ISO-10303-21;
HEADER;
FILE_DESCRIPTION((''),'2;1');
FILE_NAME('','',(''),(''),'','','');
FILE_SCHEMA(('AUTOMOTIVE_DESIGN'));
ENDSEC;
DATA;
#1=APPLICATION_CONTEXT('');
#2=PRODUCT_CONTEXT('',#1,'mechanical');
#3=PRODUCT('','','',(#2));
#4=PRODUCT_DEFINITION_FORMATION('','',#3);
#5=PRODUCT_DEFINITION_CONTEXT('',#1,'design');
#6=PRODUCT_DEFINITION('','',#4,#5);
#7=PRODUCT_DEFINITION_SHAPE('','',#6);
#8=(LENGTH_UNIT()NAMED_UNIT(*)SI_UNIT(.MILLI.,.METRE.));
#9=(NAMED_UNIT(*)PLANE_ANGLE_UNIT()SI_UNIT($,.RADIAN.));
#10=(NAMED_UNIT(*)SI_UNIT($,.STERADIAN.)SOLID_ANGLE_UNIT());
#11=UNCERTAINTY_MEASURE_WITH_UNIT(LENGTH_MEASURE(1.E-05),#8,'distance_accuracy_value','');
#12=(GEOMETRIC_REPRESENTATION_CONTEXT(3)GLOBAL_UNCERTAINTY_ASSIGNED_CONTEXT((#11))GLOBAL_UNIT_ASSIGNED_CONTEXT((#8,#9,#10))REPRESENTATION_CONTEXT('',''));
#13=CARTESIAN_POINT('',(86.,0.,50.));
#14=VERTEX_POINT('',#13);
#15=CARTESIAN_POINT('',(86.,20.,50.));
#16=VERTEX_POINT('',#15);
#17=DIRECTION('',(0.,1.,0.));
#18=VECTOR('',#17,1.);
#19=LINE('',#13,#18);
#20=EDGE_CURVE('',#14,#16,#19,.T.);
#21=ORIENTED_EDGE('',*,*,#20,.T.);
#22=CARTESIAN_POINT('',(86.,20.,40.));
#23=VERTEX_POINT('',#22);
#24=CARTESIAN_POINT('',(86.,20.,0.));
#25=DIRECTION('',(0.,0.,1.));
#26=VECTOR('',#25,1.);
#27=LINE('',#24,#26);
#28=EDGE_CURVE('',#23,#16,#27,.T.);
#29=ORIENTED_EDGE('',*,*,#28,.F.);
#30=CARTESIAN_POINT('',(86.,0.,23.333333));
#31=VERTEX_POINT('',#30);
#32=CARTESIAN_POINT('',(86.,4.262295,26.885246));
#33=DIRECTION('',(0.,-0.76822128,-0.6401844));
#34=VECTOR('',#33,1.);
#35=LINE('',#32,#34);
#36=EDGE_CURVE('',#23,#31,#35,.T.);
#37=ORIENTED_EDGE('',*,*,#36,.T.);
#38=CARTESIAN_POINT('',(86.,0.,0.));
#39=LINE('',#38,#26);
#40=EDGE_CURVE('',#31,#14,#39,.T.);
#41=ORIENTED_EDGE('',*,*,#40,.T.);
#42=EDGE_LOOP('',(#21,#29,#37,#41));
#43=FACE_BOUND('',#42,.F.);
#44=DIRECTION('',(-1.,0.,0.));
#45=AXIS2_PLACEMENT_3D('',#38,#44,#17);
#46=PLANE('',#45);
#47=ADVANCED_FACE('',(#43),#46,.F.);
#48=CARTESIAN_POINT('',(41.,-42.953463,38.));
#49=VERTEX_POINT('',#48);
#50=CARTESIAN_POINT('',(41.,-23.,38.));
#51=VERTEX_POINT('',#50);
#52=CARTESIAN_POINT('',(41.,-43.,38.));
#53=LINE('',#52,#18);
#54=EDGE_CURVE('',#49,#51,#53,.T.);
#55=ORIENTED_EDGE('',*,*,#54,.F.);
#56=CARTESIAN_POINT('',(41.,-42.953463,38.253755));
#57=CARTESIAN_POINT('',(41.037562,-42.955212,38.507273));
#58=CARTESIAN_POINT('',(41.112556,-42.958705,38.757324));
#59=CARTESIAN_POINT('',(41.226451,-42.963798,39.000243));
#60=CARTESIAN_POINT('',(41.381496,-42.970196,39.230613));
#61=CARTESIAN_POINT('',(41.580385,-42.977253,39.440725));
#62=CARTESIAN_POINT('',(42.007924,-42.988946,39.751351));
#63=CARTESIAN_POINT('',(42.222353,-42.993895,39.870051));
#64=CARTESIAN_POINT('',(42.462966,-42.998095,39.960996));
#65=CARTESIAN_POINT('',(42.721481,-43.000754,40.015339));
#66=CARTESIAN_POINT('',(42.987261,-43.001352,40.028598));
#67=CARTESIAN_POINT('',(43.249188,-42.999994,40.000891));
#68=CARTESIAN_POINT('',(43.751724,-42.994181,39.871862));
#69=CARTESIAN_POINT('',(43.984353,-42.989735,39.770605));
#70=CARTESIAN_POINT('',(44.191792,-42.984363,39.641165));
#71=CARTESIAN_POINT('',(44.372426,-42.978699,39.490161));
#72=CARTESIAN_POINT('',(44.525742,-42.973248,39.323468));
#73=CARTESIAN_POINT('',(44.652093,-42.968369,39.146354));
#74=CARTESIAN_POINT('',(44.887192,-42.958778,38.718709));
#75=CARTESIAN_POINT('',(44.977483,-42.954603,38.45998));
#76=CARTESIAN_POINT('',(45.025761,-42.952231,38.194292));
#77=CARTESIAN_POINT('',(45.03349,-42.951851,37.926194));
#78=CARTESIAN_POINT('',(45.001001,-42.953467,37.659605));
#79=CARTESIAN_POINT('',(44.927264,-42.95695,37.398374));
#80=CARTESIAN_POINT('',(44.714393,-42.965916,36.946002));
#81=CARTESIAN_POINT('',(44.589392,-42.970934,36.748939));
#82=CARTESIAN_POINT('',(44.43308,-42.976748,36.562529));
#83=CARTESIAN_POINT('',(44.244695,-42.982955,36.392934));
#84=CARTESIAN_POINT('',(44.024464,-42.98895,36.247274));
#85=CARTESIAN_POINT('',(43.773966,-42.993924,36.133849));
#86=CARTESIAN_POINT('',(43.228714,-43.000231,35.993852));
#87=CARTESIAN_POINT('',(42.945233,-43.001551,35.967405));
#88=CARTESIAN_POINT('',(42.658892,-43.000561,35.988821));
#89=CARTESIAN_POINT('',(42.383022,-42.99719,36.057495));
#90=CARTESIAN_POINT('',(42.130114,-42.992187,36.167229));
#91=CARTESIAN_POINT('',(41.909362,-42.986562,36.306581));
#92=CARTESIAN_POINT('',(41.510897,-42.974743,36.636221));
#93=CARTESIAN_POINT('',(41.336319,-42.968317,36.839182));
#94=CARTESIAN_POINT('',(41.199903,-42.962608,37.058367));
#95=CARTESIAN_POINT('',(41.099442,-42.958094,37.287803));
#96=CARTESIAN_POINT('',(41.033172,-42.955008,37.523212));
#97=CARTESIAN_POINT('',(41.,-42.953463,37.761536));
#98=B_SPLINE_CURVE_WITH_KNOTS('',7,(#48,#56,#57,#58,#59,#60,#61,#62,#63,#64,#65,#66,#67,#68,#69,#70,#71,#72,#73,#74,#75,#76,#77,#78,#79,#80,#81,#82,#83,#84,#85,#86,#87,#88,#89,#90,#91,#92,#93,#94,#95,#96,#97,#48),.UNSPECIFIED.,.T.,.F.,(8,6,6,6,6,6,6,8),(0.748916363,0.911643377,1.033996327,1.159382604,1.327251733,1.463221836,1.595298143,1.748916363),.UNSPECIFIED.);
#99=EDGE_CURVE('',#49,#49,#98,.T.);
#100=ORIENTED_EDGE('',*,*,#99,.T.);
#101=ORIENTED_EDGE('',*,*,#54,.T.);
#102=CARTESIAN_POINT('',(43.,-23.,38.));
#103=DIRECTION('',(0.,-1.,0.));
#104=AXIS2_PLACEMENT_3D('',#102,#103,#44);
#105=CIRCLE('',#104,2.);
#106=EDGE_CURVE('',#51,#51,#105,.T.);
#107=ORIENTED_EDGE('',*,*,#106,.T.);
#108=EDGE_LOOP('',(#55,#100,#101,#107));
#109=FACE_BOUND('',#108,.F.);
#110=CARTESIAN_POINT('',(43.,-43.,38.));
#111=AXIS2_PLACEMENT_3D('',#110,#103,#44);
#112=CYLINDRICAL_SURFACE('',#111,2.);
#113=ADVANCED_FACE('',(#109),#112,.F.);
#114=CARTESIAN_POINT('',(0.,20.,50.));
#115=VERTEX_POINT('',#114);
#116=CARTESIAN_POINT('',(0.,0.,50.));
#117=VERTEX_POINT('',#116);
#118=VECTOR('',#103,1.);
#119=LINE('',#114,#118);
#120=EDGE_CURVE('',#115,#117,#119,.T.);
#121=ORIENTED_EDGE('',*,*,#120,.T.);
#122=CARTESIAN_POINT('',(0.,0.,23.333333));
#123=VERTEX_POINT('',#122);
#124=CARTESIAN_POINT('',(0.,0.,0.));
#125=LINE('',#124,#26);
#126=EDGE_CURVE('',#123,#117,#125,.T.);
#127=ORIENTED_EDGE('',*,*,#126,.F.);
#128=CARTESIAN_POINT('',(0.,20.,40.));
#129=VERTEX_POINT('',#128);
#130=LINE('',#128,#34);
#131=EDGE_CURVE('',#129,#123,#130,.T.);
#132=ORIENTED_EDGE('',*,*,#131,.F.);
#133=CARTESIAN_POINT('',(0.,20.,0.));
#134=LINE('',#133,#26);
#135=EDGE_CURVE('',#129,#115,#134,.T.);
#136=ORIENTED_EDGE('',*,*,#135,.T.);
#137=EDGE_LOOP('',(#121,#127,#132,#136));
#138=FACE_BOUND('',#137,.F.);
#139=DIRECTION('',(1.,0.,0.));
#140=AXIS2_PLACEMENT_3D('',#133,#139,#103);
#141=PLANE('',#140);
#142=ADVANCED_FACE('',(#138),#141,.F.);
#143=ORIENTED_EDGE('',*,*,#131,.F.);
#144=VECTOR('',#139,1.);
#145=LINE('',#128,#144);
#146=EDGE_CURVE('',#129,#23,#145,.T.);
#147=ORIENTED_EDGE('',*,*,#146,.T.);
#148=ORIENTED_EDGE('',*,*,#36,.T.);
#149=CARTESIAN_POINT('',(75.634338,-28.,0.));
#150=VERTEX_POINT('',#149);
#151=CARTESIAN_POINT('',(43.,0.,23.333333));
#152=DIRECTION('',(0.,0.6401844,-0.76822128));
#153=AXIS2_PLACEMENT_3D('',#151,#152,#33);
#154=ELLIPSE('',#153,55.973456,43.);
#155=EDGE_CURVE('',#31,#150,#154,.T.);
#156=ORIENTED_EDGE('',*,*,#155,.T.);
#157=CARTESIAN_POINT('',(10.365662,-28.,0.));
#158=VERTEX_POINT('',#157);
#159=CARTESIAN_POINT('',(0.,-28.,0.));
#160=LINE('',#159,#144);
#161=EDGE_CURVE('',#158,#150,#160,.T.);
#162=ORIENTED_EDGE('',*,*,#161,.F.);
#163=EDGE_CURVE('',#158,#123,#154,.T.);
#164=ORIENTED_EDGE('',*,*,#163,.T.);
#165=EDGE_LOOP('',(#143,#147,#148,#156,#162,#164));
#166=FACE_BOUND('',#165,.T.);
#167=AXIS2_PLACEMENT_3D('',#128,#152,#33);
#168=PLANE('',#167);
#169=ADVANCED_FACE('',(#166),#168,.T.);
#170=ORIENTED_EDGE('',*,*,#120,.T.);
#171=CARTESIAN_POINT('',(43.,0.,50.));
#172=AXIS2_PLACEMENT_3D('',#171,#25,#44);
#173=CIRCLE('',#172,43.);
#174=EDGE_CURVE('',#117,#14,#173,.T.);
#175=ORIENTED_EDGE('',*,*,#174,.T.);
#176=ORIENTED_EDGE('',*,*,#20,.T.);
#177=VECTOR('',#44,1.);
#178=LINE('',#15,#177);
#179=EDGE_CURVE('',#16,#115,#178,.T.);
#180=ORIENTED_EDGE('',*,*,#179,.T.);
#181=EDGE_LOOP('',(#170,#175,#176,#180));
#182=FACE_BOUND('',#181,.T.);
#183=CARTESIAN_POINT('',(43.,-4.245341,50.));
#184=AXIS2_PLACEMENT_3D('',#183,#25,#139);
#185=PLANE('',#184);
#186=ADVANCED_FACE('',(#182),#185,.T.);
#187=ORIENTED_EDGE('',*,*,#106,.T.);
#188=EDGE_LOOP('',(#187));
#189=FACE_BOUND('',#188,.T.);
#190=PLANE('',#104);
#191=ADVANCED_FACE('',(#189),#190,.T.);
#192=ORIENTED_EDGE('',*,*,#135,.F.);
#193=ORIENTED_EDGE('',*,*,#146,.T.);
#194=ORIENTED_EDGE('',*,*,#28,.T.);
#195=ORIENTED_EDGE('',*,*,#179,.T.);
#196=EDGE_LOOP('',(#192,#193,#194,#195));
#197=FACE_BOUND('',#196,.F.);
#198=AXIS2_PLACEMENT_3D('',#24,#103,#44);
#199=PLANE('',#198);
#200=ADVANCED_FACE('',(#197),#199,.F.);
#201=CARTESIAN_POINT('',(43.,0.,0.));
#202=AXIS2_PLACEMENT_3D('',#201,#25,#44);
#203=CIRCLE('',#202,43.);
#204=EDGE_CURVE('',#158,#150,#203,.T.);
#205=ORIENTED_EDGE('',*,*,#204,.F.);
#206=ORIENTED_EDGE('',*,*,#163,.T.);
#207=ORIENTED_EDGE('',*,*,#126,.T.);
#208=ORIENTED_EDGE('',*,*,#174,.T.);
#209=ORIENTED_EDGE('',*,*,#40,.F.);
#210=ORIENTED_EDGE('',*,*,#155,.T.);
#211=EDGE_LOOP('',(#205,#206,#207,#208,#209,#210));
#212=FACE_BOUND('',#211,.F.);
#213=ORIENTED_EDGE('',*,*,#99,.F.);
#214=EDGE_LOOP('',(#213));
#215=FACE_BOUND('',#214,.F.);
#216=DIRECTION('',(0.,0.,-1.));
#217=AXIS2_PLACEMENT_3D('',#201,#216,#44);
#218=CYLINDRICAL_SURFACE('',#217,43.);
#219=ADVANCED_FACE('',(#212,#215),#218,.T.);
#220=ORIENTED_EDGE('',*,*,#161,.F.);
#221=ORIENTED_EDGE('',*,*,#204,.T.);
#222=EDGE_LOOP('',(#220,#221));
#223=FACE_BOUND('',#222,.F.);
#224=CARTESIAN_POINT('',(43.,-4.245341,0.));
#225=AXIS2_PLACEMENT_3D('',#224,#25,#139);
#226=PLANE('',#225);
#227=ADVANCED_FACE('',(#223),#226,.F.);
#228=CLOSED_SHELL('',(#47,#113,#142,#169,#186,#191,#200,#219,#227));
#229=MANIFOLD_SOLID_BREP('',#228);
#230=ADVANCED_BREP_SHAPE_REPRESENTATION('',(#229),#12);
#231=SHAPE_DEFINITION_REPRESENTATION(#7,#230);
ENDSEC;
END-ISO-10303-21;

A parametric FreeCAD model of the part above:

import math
import FreeCAD as App
import Part
import Sketcher
from FreeCAD import Vector
Q = App.Units.Quantity


def add_polygon(sketch, points):
    """Adds a closed chain of lines whose ends are joined by coincident constraints."""
    first, n = sketch.GeometryCount, len(points)
    for a, b in zip(points, points[1:] + points[:1]):
        sketch.addGeometry(Part.LineSegment(App.Vector(*a, 0), App.Vector(*b, 0)), False)
    for i in range(n):
        sketch.addConstraint(Sketcher.Constraint("Coincident", first + i, 2, first + (i + 1) % n, 1))

doc = App.newDocument("Part")
body = doc.addObject("PartDesign::Body", "Body")

sketch1 = body.newObject("Sketcher::SketchObject", "Sketch")
sketch1.AttachmentSupport = (doc.getObject("XY_Plane"), [""])
sketch1.MapMode = "FlatFace"
sketch1.addGeometry([
    Part.LineSegment(Vector(0, 20, 0), Vector(0, 0, 0)),
    Part.ArcOfCircle(Part.Circle(Vector(43, 0, 0), Vector(0, 0, 1), 43), math.radians(180), math.radians(360)),
    Part.LineSegment(Vector(86, 0, 0), Vector(86, 20, 0)),
    Part.LineSegment(Vector(86, 20, 0), Vector(0, 20, 0)),
], False)
sketch1.addConstraint([
    Sketcher.Constraint("Tangent", 0, 2, 1, 1),
    Sketcher.Constraint("Tangent", 1, 2, 2, 1),
    Sketcher.Constraint("Coincident", 2, 2, 3, 1),
    Sketcher.Constraint("Coincident", 3, 2, 0, 1),
    Sketcher.Constraint("Vertical", 0),
    Sketcher.Constraint("Vertical", 2),
    Sketcher.Constraint("Horizontal", 3),
    Sketcher.Constraint("Coincident", 0, 2, -1, 1),
    Sketcher.Constraint("Radius", 1, Q("43 mm")),
    Sketcher.Constraint("DistanceY", 0, 2, 0, 1, Q("20 mm")),
])
pad1 = body.newObject("PartDesign::Pad", "Pad")
pad1.Profile = sketch1
pad1.Length = 50

sketch2 = body.newObject("Sketcher::SketchObject", "Sketch001")
sketch2.AttachmentSupport = (doc.getObject("YZ_Plane"), [""])
sketch2.MapMode = "FlatFace"
add_polygon(sketch2, [(20, 40), (-28, 0), (20, 0)])
sketch2.addConstraint([
    Sketcher.Constraint("Horizontal", 1),
    Sketcher.Constraint("Vertical", 2),
    Sketcher.Constraint("PointOnObject", 0, 2, -1),
    Sketcher.Constraint("DistanceX", 1, 1, 1, 2, Q("48 mm")),
    Sketcher.Constraint("DistanceY", 2, 1, 2, 2, Q("40 mm")),
    Sketcher.Constraint("DistanceX", 0, 2, -1, 1, Q("28 mm")),
])
pocket1 = body.newObject("PartDesign::Pocket", "Pocket")
pocket1.Profile = sketch2
pocket1.Type = "ThroughAll"
pocket1.Midplane = True

sketch3 = body.newObject("Sketcher::SketchObject", "Sketch002")
sketch3.AttachmentSupport = (doc.getObject("XZ_Plane"), [""])
sketch3.MapMode = "FlatFace"
sketch3.AttachmentOffset = App.Placement(Vector(0, 0, 43), App.Rotation())
sketch3.addGeometry(Part.Circle(Vector(43, 38, 0), Vector(0, 0, 1), 2), False)
sketch3.addConstraint([
    Sketcher.Constraint("Diameter", 0, Q("4 mm")),
    Sketcher.Constraint("DistanceX", -1, 1, 0, 3, Q("43 mm")),
    Sketcher.Constraint("DistanceY", -1, 1, 0, 3, Q("38 mm")),
])
pocket2 = body.newObject("PartDesign::Pocket", "Pocket001")
pocket2.Profile = sketch3
pocket2.Length = 20

doc.recompute()
